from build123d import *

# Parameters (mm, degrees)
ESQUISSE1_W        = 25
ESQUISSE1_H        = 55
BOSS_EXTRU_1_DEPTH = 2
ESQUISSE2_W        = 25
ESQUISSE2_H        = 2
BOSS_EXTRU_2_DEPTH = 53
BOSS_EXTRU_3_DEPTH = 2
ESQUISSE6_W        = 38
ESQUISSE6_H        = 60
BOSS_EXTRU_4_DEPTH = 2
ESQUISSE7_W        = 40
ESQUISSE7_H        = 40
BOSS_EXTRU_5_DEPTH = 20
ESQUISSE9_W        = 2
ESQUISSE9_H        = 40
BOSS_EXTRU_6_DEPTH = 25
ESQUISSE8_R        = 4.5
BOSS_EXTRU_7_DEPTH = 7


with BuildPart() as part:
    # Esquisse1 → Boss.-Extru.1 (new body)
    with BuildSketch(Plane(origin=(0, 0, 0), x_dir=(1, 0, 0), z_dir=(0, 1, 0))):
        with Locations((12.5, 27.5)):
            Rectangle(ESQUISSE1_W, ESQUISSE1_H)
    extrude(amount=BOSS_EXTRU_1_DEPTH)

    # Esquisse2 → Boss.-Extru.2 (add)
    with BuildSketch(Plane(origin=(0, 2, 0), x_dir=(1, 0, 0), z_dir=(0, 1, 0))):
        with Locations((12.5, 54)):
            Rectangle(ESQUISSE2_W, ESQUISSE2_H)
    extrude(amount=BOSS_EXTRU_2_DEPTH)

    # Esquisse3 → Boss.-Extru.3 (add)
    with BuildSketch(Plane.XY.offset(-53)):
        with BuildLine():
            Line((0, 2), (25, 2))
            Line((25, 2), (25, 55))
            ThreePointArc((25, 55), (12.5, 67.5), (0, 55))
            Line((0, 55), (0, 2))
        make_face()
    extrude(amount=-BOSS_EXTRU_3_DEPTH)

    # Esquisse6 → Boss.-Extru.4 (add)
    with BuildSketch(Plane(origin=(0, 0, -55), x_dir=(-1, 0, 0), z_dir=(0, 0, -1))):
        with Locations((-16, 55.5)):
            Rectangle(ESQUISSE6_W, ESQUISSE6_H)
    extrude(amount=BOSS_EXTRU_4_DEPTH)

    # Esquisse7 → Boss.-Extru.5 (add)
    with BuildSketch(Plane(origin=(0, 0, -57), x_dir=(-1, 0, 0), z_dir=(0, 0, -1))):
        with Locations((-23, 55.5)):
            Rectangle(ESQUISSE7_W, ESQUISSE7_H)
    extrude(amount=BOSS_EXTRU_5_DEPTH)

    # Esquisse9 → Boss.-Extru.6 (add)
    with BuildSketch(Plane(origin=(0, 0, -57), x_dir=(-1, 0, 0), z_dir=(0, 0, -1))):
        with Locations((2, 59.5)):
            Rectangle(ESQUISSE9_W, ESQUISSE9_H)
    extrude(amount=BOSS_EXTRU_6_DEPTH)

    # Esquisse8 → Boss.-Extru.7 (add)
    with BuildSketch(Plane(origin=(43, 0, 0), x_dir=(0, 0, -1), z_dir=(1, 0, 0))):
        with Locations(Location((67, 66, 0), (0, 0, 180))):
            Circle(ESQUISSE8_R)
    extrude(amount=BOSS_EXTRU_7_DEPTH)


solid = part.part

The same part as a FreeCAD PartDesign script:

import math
import FreeCAD as App
import Part
import Sketcher
Q = App.Units.Quantity

doc = App.newDocument("Part")
body = doc.addObject("PartDesign::Body", "Body")

sketch1 = body.newObject("Sketcher::SketchObject", "Sketch")
sketch1.AttachmentSupport = (doc.getObject("XZ_Plane"), [""])
sketch1.MapMode = "FlatFace"
sketch1.addGeometry(Part.LineSegment(App.Vector(0, -55, 0), App.Vector(0, 0, 0)), False)
sketch1.addGeometry(Part.LineSegment(App.Vector(0, 0, 0), App.Vector(25, 0, 0)), False)
sketch1.addGeometry(Part.LineSegment(App.Vector(25, 0, 0), App.Vector(25, -55, 0)), False)
sketch1.addGeometry(Part.LineSegment(App.Vector(25, -55, 0), App.Vector(0, -55, 0)), False)
sketch1.addConstraint(Sketcher.Constraint("Coincident", 0, 2, 1, 1))
sketch1.addConstraint(Sketcher.Constraint("Coincident", 1, 2, 2, 1))
sketch1.addConstraint(Sketcher.Constraint("Coincident", 2, 2, 3, 1))
sketch1.addConstraint(Sketcher.Constraint("Coincident", 3, 2, 0, 1))
sketch1.addConstraint(Sketcher.Constraint("Vertical", 0))
sketch1.addConstraint(Sketcher.Constraint("Horizontal", 1))
sketch1.addConstraint(Sketcher.Constraint("Vertical", 2))
sketch1.addConstraint(Sketcher.Constraint("Horizontal", 3))
sketch1.addConstraint(Sketcher.Constraint("Coincident", 0, 2, -1, 1))
sketch1.addConstraint(Sketcher.Constraint("DistanceX", 1, 1, 1, 2, Q("25 mm")))
sketch1.addConstraint(Sketcher.Constraint("DistanceY", 0, 1, 0, 2, Q("55 mm")))
pad1 = body.newObject("PartDesign::Pad", "Pad")
pad1.Profile = sketch1
pad1.Length = 2
pad1.Reversed = True

sketch2 = body.newObject("Sketcher::SketchObject", "Sketch001")
sketch2.AttachmentSupport = (doc.getObject("XZ_Plane"), [""])
sketch2.MapMode = "FlatFace"
sketch2.AttachmentOffset = App.Placement(App.Vector(0, 0, -2), App.Rotation())
sketch2.addGeometry(Part.LineSegment(App.Vector(0, -55, 0), App.Vector(0, -53, 0)), False)
sketch2.addGeometry(Part.LineSegment(App.Vector(0, -53, 0), App.Vector(25, -53, 0)), False)
sketch2.addGeometry(Part.LineSegment(App.Vector(25, -53, 0), App.Vector(25, -55, 0)), False)
sketch2.addGeometry(Part.LineSegment(App.Vector(25, -55, 0), App.Vector(0, -55, 0)), False)
sketch2.addConstraint(Sketcher.Constraint("Coincident", 0, 2, 1, 1))
sketch2.addConstraint(Sketcher.Constraint("Coincident", 1, 2, 2, 1))
sketch2.addConstraint(Sketcher.Constraint("Coincident", 2, 2, 3, 1))
sketch2.addConstraint(Sketcher.Constraint("Coincident", 3, 2, 0, 1))
sketch2.addConstraint(Sketcher.Constraint("Vertical", 0))
sketch2.addConstraint(Sketcher.Constraint("Horizontal", 1))
sketch2.addConstraint(Sketcher.Constraint("Vertical", 2))
sketch2.addConstraint(Sketcher.Constraint("Horizontal", 3))
sketch2.addConstraint(Sketcher.Constraint("PointOnObject", 0, 2, -2))
sketch2.addConstraint(Sketcher.Constraint("DistanceX", 1, 1, 1, 2, Q("25 mm")))
sketch2.addConstraint(Sketcher.Constraint("DistanceY", 0, 1, 0, 2, Q("2 mm")))
sketch2.addConstraint(Sketcher.Constraint("DistanceY", 0, 2, -1, 1, Q("53 mm")))
pad2 = body.newObject("PartDesign::Pad", "Pad001")
pad2.Profile = sketch2
pad2.Length = 53
pad2.Reversed = True

sketch3 = body.newObject("Sketcher::SketchObject", "Sketch002")
sketch3.AttachmentSupport = (doc.getObject("XY_Plane"), [""])
sketch3.MapMode = "FlatFace"
sketch3.AttachmentOffset = App.Placement(App.Vector(0, 0, -53), App.Rotation())
sketch3.addGeometry(Part.LineSegment(App.Vector(0, 2, 0), App.Vector(25, 2, 0)), False)
sketch3.addGeometry(Part.LineSegment(App.Vector(25, 2, 0), App.Vector(25, 55, 0)), False)
sketch3.addGeometry(Part.ArcOfCircle(Part.Circle(App.Vector(12.5, 55, 0), App.Vector(0, 0, 1), 12.5), math.radians(0), math.radians(180)), False)
sketch3.addGeometry(Part.LineSegment(App.Vector(0, 55, 0), App.Vector(0, 2, 0)), False)
sketch3.addConstraint(Sketcher.Constraint("Coincident", 0, 2, 1, 1))
sketch3.addConstraint(Sketcher.Constraint("Tangent", 1, 2, 2, 1))
sketch3.addConstraint(Sketcher.Constraint("Tangent", 2, 2, 3, 1))
sketch3.addConstraint(Sketcher.Constraint("Coincident", 3, 2, 0, 1))
sketch3.addConstraint(Sketcher.Constraint("Horizontal", 0))
sketch3.addConstraint(Sketcher.Constraint("Vertical", 1))
sketch3.addConstraint(Sketcher.Constraint("Vertical", 3))
sketch3.addConstraint(Sketcher.Constraint("PointOnObject", 2, 2, -2))
sketch3.addConstraint(Sketcher.Constraint("Radius", 2, Q("12.5 mm")))
sketch3.addConstraint(Sketcher.Constraint("DistanceY", 1, 1, 1, 2, Q("53 mm")))
sketch3.addConstraint(Sketcher.Constraint("DistanceY", -1, 1, 2, 3, Q("55 mm")))
pad3 = body.newObject("PartDesign::Pad", "Pad002")
pad3.Profile = sketch3
pad3.Length = 2
pad3.Reversed = True

sketch4 = body.newObject("Sketcher::SketchObject", "Sketch003")
sketch4.AttachmentSupport = (doc.getObject("XY_Plane"), [""])
sketch4.MapMode = "FlatFace"
sketch4.AttachmentOffset = App.Placement(App.Vector(0, 0, -55), App.Rotation())
sketch4.addGeometry(Part.LineSegment(App.Vector(35, 85.5, 0), App.Vector(35, 25.5, 0)), False)
sketch4.addGeometry(Part.LineSegment(App.Vector(35, 25.5, 0), App.Vector(-3, 25.5, 0)), False)
sketch4.addGeometry(Part.LineSegment(App.Vector(-3, 25.5, 0), App.Vector(-3, 85.5, 0)), False)
sketch4.addGeometry(Part.LineSegment(App.Vector(-3, 85.5, 0), App.Vector(35, 85.5, 0)), False)
sketch4.addConstraint(Sketcher.Constraint("Coincident", 0, 2, 1, 1))
sketch4.addConstraint(Sketcher.Constraint("Coincident", 1, 2, 2, 1))
sketch4.addConstraint(Sketcher.Constraint("Coincident", 2, 2, 3, 1))
sketch4.addConstraint(Sketcher.Constraint("Coincident", 3, 2, 0, 1))
sketch4.addConstraint(Sketcher.Constraint("Vertical", 0))
sketch4.addConstraint(Sketcher.Constraint("Horizontal", 1))
sketch4.addConstraint(Sketcher.Constraint("Vertical", 2))
sketch4.addConstraint(Sketcher.Constraint("Horizontal", 3))
sketch4.addConstraint(Sketcher.Constraint("DistanceX", 1, 2, 1, 1, Q("38 mm")))
sketch4.addConstraint(Sketcher.Constraint("DistanceY", 0, 2, 0, 1, Q("60 mm")))
sketch4.addConstraint(Sketcher.Constraint("DistanceX", -1, 1, 0, 2, Q("35 mm")))
sketch4.addConstraint(Sketcher.Constraint("DistanceY", -1, 1, 0, 2, Q("25.5 mm")))
pad4 = body.newObject("PartDesign::Pad", "Pad003")
pad4.Profile = sketch4
pad4.Length = 2
pad4.Reversed = True

sketch5 = body.newObject("Sketcher::SketchObject", "Sketch004")
sketch5.AttachmentSupport = (doc.getObject("XY_Plane"), [""])
sketch5.MapMode = "FlatFace"
sketch5.AttachmentOffset = App.Placement(App.Vector(0, 0, -57), App.Rotation())
sketch5.addGeometry(Part.LineSegment(App.Vector(43, 75.5, 0), App.Vector(43, 35.5, 0)), False)
sketch5.addGeometry(Part.LineSegment(App.Vector(43, 35.5, 0), App.Vector(3, 35.5, 0)), False)
sketch5.addGeometry(Part.LineSegment(App.Vector(3, 35.5, 0), App.Vector(3, 75.5, 0)), False)
sketch5.addGeometry(Part.LineSegment(App.Vector(3, 75.5, 0), App.Vector(43, 75.5, 0)), False)
sketch5.addConstraint(Sketcher.Constraint("Coincident", 0, 2, 1, 1))
sketch5.addConstraint(Sketcher.Constraint("Coincident", 1, 2, 2, 1))
sketch5.addConstraint(Sketcher.Constraint("Coincident", 2, 2, 3, 1))
sketch5.addConstraint(Sketcher.Constraint("Coincident", 3, 2, 0, 1))
sketch5.addConstraint(Sketcher.Constraint("Vertical", 0))
sketch5.addConstraint(Sketcher.Constraint("Horizontal", 1))
sketch5.addConstraint(Sketcher.Constraint("Vertical", 2))
sketch5.addConstraint(Sketcher.Constraint("Horizontal", 3))
sketch5.addConstraint(Sketcher.Constraint("Equal", 3, 0))
sketch5.addConstraint(Sketcher.Constraint("DistanceX", 1, 2, 1, 1, Q("40 mm")))
sketch5.addConstraint(Sketcher.Constraint("DistanceX", -1, 1, 0, 2, Q("43 mm")))
sketch5.addConstraint(Sketcher.Constraint("DistanceY", -1, 1, 0, 2, Q("35.5 mm")))
pad5 = body.newObject("PartDesign::Pad", "Pad004")
pad5.Profile = sketch5
pad5.Length = 20
pad5.Reversed = True

sketch6 = body.newObject("Sketcher::SketchObject", "Sketch005")
sketch6.AttachmentSupport = (doc.getObject("XY_Plane"), [""])
sketch6.MapMode = "FlatFace"
sketch6.AttachmentOffset = App.Placement(App.Vector(0, 0, -57), App.Rotation())
sketch6.addGeometry(Part.LineSegment(App.Vector(-1, 79.5, 0), App.Vector(-1, 39.5, 0)), False)
sketch6.addGeometry(Part.LineSegment(App.Vector(-1, 39.5, 0), App.Vector(-3, 39.5, 0)), False)
sketch6.addGeometry(Part.LineSegment(App.Vector(-3, 39.5, 0), App.Vector(-3, 79.5, 0)), False)
sketch6.addGeometry(Part.LineSegment(App.Vector(-3, 79.5, 0), App.Vector(-1, 79.5, 0)), False)
sketch6.addConstraint(Sketcher.Constraint("Coincident", 0, 2, 1, 1))
sketch6.addConstraint(Sketcher.Constraint("Coincident", 1, 2, 2, 1))
sketch6.addConstraint(Sketcher.Constraint("Coincident", 2, 2, 3, 1))
sketch6.addConstraint(Sketcher.Constraint("Coincident", 3, 2, 0, 1))
sketch6.addConstraint(Sketcher.Constraint("Vertical", 0))
sketch6.addConstraint(Sketcher.Constraint("Horizontal", 1))
sketch6.addConstraint(Sketcher.Constraint("Vertical", 2))
sketch6.addConstraint(Sketcher.Constraint("Horizontal", 3))
sketch6.addConstraint(Sketcher.Constraint("DistanceX", 1, 2, 1, 1, Q("2 mm")))
sketch6.addConstraint(Sketcher.Constraint("DistanceY", 0, 2, 0, 1, Q("40 mm")))
sketch6.addConstraint(Sketcher.Constraint("DistanceX", 0, 2, -1, 1, Q("1 mm")))
sketch6.addConstraint(Sketcher.Constraint("DistanceY", -1, 1, 0, 2, Q("39.5 mm")))
pad6 = body.newObject("PartDesign::Pad", "Pad005")
pad6.Profile = sketch6
pad6.Length = 25
pad6.Reversed = True

sketch7 = body.newObject("Sketcher::SketchObject", "Sketch006")
sketch7.AttachmentSupport = (doc.getObject("YZ_Plane"), [""])
sketch7.MapMode = "FlatFace"
sketch7.AttachmentOffset = App.Placement(App.Vector(0, 0, 43), App.Rotation())
sketch7.addGeometry(Part.Circle(App.Vector(66, -67, 0), App.Vector(0, 0, 1), 4.5), False)
sketch7.addConstraint(Sketcher.Constraint("Diameter", 0, Q("9 mm")))
sketch7.addConstraint(Sketcher.Constraint("DistanceX", -1, 1, 0, 3, Q("66 mm")))
sketch7.addConstraint(Sketcher.Constraint("DistanceY", 0, 3, -1, 1, Q("67 mm")))
pad7 = body.newObject("PartDesign::Pad", "Pad006")
pad7.Profile = sketch7
pad7.Length = 7

doc.recompute()
